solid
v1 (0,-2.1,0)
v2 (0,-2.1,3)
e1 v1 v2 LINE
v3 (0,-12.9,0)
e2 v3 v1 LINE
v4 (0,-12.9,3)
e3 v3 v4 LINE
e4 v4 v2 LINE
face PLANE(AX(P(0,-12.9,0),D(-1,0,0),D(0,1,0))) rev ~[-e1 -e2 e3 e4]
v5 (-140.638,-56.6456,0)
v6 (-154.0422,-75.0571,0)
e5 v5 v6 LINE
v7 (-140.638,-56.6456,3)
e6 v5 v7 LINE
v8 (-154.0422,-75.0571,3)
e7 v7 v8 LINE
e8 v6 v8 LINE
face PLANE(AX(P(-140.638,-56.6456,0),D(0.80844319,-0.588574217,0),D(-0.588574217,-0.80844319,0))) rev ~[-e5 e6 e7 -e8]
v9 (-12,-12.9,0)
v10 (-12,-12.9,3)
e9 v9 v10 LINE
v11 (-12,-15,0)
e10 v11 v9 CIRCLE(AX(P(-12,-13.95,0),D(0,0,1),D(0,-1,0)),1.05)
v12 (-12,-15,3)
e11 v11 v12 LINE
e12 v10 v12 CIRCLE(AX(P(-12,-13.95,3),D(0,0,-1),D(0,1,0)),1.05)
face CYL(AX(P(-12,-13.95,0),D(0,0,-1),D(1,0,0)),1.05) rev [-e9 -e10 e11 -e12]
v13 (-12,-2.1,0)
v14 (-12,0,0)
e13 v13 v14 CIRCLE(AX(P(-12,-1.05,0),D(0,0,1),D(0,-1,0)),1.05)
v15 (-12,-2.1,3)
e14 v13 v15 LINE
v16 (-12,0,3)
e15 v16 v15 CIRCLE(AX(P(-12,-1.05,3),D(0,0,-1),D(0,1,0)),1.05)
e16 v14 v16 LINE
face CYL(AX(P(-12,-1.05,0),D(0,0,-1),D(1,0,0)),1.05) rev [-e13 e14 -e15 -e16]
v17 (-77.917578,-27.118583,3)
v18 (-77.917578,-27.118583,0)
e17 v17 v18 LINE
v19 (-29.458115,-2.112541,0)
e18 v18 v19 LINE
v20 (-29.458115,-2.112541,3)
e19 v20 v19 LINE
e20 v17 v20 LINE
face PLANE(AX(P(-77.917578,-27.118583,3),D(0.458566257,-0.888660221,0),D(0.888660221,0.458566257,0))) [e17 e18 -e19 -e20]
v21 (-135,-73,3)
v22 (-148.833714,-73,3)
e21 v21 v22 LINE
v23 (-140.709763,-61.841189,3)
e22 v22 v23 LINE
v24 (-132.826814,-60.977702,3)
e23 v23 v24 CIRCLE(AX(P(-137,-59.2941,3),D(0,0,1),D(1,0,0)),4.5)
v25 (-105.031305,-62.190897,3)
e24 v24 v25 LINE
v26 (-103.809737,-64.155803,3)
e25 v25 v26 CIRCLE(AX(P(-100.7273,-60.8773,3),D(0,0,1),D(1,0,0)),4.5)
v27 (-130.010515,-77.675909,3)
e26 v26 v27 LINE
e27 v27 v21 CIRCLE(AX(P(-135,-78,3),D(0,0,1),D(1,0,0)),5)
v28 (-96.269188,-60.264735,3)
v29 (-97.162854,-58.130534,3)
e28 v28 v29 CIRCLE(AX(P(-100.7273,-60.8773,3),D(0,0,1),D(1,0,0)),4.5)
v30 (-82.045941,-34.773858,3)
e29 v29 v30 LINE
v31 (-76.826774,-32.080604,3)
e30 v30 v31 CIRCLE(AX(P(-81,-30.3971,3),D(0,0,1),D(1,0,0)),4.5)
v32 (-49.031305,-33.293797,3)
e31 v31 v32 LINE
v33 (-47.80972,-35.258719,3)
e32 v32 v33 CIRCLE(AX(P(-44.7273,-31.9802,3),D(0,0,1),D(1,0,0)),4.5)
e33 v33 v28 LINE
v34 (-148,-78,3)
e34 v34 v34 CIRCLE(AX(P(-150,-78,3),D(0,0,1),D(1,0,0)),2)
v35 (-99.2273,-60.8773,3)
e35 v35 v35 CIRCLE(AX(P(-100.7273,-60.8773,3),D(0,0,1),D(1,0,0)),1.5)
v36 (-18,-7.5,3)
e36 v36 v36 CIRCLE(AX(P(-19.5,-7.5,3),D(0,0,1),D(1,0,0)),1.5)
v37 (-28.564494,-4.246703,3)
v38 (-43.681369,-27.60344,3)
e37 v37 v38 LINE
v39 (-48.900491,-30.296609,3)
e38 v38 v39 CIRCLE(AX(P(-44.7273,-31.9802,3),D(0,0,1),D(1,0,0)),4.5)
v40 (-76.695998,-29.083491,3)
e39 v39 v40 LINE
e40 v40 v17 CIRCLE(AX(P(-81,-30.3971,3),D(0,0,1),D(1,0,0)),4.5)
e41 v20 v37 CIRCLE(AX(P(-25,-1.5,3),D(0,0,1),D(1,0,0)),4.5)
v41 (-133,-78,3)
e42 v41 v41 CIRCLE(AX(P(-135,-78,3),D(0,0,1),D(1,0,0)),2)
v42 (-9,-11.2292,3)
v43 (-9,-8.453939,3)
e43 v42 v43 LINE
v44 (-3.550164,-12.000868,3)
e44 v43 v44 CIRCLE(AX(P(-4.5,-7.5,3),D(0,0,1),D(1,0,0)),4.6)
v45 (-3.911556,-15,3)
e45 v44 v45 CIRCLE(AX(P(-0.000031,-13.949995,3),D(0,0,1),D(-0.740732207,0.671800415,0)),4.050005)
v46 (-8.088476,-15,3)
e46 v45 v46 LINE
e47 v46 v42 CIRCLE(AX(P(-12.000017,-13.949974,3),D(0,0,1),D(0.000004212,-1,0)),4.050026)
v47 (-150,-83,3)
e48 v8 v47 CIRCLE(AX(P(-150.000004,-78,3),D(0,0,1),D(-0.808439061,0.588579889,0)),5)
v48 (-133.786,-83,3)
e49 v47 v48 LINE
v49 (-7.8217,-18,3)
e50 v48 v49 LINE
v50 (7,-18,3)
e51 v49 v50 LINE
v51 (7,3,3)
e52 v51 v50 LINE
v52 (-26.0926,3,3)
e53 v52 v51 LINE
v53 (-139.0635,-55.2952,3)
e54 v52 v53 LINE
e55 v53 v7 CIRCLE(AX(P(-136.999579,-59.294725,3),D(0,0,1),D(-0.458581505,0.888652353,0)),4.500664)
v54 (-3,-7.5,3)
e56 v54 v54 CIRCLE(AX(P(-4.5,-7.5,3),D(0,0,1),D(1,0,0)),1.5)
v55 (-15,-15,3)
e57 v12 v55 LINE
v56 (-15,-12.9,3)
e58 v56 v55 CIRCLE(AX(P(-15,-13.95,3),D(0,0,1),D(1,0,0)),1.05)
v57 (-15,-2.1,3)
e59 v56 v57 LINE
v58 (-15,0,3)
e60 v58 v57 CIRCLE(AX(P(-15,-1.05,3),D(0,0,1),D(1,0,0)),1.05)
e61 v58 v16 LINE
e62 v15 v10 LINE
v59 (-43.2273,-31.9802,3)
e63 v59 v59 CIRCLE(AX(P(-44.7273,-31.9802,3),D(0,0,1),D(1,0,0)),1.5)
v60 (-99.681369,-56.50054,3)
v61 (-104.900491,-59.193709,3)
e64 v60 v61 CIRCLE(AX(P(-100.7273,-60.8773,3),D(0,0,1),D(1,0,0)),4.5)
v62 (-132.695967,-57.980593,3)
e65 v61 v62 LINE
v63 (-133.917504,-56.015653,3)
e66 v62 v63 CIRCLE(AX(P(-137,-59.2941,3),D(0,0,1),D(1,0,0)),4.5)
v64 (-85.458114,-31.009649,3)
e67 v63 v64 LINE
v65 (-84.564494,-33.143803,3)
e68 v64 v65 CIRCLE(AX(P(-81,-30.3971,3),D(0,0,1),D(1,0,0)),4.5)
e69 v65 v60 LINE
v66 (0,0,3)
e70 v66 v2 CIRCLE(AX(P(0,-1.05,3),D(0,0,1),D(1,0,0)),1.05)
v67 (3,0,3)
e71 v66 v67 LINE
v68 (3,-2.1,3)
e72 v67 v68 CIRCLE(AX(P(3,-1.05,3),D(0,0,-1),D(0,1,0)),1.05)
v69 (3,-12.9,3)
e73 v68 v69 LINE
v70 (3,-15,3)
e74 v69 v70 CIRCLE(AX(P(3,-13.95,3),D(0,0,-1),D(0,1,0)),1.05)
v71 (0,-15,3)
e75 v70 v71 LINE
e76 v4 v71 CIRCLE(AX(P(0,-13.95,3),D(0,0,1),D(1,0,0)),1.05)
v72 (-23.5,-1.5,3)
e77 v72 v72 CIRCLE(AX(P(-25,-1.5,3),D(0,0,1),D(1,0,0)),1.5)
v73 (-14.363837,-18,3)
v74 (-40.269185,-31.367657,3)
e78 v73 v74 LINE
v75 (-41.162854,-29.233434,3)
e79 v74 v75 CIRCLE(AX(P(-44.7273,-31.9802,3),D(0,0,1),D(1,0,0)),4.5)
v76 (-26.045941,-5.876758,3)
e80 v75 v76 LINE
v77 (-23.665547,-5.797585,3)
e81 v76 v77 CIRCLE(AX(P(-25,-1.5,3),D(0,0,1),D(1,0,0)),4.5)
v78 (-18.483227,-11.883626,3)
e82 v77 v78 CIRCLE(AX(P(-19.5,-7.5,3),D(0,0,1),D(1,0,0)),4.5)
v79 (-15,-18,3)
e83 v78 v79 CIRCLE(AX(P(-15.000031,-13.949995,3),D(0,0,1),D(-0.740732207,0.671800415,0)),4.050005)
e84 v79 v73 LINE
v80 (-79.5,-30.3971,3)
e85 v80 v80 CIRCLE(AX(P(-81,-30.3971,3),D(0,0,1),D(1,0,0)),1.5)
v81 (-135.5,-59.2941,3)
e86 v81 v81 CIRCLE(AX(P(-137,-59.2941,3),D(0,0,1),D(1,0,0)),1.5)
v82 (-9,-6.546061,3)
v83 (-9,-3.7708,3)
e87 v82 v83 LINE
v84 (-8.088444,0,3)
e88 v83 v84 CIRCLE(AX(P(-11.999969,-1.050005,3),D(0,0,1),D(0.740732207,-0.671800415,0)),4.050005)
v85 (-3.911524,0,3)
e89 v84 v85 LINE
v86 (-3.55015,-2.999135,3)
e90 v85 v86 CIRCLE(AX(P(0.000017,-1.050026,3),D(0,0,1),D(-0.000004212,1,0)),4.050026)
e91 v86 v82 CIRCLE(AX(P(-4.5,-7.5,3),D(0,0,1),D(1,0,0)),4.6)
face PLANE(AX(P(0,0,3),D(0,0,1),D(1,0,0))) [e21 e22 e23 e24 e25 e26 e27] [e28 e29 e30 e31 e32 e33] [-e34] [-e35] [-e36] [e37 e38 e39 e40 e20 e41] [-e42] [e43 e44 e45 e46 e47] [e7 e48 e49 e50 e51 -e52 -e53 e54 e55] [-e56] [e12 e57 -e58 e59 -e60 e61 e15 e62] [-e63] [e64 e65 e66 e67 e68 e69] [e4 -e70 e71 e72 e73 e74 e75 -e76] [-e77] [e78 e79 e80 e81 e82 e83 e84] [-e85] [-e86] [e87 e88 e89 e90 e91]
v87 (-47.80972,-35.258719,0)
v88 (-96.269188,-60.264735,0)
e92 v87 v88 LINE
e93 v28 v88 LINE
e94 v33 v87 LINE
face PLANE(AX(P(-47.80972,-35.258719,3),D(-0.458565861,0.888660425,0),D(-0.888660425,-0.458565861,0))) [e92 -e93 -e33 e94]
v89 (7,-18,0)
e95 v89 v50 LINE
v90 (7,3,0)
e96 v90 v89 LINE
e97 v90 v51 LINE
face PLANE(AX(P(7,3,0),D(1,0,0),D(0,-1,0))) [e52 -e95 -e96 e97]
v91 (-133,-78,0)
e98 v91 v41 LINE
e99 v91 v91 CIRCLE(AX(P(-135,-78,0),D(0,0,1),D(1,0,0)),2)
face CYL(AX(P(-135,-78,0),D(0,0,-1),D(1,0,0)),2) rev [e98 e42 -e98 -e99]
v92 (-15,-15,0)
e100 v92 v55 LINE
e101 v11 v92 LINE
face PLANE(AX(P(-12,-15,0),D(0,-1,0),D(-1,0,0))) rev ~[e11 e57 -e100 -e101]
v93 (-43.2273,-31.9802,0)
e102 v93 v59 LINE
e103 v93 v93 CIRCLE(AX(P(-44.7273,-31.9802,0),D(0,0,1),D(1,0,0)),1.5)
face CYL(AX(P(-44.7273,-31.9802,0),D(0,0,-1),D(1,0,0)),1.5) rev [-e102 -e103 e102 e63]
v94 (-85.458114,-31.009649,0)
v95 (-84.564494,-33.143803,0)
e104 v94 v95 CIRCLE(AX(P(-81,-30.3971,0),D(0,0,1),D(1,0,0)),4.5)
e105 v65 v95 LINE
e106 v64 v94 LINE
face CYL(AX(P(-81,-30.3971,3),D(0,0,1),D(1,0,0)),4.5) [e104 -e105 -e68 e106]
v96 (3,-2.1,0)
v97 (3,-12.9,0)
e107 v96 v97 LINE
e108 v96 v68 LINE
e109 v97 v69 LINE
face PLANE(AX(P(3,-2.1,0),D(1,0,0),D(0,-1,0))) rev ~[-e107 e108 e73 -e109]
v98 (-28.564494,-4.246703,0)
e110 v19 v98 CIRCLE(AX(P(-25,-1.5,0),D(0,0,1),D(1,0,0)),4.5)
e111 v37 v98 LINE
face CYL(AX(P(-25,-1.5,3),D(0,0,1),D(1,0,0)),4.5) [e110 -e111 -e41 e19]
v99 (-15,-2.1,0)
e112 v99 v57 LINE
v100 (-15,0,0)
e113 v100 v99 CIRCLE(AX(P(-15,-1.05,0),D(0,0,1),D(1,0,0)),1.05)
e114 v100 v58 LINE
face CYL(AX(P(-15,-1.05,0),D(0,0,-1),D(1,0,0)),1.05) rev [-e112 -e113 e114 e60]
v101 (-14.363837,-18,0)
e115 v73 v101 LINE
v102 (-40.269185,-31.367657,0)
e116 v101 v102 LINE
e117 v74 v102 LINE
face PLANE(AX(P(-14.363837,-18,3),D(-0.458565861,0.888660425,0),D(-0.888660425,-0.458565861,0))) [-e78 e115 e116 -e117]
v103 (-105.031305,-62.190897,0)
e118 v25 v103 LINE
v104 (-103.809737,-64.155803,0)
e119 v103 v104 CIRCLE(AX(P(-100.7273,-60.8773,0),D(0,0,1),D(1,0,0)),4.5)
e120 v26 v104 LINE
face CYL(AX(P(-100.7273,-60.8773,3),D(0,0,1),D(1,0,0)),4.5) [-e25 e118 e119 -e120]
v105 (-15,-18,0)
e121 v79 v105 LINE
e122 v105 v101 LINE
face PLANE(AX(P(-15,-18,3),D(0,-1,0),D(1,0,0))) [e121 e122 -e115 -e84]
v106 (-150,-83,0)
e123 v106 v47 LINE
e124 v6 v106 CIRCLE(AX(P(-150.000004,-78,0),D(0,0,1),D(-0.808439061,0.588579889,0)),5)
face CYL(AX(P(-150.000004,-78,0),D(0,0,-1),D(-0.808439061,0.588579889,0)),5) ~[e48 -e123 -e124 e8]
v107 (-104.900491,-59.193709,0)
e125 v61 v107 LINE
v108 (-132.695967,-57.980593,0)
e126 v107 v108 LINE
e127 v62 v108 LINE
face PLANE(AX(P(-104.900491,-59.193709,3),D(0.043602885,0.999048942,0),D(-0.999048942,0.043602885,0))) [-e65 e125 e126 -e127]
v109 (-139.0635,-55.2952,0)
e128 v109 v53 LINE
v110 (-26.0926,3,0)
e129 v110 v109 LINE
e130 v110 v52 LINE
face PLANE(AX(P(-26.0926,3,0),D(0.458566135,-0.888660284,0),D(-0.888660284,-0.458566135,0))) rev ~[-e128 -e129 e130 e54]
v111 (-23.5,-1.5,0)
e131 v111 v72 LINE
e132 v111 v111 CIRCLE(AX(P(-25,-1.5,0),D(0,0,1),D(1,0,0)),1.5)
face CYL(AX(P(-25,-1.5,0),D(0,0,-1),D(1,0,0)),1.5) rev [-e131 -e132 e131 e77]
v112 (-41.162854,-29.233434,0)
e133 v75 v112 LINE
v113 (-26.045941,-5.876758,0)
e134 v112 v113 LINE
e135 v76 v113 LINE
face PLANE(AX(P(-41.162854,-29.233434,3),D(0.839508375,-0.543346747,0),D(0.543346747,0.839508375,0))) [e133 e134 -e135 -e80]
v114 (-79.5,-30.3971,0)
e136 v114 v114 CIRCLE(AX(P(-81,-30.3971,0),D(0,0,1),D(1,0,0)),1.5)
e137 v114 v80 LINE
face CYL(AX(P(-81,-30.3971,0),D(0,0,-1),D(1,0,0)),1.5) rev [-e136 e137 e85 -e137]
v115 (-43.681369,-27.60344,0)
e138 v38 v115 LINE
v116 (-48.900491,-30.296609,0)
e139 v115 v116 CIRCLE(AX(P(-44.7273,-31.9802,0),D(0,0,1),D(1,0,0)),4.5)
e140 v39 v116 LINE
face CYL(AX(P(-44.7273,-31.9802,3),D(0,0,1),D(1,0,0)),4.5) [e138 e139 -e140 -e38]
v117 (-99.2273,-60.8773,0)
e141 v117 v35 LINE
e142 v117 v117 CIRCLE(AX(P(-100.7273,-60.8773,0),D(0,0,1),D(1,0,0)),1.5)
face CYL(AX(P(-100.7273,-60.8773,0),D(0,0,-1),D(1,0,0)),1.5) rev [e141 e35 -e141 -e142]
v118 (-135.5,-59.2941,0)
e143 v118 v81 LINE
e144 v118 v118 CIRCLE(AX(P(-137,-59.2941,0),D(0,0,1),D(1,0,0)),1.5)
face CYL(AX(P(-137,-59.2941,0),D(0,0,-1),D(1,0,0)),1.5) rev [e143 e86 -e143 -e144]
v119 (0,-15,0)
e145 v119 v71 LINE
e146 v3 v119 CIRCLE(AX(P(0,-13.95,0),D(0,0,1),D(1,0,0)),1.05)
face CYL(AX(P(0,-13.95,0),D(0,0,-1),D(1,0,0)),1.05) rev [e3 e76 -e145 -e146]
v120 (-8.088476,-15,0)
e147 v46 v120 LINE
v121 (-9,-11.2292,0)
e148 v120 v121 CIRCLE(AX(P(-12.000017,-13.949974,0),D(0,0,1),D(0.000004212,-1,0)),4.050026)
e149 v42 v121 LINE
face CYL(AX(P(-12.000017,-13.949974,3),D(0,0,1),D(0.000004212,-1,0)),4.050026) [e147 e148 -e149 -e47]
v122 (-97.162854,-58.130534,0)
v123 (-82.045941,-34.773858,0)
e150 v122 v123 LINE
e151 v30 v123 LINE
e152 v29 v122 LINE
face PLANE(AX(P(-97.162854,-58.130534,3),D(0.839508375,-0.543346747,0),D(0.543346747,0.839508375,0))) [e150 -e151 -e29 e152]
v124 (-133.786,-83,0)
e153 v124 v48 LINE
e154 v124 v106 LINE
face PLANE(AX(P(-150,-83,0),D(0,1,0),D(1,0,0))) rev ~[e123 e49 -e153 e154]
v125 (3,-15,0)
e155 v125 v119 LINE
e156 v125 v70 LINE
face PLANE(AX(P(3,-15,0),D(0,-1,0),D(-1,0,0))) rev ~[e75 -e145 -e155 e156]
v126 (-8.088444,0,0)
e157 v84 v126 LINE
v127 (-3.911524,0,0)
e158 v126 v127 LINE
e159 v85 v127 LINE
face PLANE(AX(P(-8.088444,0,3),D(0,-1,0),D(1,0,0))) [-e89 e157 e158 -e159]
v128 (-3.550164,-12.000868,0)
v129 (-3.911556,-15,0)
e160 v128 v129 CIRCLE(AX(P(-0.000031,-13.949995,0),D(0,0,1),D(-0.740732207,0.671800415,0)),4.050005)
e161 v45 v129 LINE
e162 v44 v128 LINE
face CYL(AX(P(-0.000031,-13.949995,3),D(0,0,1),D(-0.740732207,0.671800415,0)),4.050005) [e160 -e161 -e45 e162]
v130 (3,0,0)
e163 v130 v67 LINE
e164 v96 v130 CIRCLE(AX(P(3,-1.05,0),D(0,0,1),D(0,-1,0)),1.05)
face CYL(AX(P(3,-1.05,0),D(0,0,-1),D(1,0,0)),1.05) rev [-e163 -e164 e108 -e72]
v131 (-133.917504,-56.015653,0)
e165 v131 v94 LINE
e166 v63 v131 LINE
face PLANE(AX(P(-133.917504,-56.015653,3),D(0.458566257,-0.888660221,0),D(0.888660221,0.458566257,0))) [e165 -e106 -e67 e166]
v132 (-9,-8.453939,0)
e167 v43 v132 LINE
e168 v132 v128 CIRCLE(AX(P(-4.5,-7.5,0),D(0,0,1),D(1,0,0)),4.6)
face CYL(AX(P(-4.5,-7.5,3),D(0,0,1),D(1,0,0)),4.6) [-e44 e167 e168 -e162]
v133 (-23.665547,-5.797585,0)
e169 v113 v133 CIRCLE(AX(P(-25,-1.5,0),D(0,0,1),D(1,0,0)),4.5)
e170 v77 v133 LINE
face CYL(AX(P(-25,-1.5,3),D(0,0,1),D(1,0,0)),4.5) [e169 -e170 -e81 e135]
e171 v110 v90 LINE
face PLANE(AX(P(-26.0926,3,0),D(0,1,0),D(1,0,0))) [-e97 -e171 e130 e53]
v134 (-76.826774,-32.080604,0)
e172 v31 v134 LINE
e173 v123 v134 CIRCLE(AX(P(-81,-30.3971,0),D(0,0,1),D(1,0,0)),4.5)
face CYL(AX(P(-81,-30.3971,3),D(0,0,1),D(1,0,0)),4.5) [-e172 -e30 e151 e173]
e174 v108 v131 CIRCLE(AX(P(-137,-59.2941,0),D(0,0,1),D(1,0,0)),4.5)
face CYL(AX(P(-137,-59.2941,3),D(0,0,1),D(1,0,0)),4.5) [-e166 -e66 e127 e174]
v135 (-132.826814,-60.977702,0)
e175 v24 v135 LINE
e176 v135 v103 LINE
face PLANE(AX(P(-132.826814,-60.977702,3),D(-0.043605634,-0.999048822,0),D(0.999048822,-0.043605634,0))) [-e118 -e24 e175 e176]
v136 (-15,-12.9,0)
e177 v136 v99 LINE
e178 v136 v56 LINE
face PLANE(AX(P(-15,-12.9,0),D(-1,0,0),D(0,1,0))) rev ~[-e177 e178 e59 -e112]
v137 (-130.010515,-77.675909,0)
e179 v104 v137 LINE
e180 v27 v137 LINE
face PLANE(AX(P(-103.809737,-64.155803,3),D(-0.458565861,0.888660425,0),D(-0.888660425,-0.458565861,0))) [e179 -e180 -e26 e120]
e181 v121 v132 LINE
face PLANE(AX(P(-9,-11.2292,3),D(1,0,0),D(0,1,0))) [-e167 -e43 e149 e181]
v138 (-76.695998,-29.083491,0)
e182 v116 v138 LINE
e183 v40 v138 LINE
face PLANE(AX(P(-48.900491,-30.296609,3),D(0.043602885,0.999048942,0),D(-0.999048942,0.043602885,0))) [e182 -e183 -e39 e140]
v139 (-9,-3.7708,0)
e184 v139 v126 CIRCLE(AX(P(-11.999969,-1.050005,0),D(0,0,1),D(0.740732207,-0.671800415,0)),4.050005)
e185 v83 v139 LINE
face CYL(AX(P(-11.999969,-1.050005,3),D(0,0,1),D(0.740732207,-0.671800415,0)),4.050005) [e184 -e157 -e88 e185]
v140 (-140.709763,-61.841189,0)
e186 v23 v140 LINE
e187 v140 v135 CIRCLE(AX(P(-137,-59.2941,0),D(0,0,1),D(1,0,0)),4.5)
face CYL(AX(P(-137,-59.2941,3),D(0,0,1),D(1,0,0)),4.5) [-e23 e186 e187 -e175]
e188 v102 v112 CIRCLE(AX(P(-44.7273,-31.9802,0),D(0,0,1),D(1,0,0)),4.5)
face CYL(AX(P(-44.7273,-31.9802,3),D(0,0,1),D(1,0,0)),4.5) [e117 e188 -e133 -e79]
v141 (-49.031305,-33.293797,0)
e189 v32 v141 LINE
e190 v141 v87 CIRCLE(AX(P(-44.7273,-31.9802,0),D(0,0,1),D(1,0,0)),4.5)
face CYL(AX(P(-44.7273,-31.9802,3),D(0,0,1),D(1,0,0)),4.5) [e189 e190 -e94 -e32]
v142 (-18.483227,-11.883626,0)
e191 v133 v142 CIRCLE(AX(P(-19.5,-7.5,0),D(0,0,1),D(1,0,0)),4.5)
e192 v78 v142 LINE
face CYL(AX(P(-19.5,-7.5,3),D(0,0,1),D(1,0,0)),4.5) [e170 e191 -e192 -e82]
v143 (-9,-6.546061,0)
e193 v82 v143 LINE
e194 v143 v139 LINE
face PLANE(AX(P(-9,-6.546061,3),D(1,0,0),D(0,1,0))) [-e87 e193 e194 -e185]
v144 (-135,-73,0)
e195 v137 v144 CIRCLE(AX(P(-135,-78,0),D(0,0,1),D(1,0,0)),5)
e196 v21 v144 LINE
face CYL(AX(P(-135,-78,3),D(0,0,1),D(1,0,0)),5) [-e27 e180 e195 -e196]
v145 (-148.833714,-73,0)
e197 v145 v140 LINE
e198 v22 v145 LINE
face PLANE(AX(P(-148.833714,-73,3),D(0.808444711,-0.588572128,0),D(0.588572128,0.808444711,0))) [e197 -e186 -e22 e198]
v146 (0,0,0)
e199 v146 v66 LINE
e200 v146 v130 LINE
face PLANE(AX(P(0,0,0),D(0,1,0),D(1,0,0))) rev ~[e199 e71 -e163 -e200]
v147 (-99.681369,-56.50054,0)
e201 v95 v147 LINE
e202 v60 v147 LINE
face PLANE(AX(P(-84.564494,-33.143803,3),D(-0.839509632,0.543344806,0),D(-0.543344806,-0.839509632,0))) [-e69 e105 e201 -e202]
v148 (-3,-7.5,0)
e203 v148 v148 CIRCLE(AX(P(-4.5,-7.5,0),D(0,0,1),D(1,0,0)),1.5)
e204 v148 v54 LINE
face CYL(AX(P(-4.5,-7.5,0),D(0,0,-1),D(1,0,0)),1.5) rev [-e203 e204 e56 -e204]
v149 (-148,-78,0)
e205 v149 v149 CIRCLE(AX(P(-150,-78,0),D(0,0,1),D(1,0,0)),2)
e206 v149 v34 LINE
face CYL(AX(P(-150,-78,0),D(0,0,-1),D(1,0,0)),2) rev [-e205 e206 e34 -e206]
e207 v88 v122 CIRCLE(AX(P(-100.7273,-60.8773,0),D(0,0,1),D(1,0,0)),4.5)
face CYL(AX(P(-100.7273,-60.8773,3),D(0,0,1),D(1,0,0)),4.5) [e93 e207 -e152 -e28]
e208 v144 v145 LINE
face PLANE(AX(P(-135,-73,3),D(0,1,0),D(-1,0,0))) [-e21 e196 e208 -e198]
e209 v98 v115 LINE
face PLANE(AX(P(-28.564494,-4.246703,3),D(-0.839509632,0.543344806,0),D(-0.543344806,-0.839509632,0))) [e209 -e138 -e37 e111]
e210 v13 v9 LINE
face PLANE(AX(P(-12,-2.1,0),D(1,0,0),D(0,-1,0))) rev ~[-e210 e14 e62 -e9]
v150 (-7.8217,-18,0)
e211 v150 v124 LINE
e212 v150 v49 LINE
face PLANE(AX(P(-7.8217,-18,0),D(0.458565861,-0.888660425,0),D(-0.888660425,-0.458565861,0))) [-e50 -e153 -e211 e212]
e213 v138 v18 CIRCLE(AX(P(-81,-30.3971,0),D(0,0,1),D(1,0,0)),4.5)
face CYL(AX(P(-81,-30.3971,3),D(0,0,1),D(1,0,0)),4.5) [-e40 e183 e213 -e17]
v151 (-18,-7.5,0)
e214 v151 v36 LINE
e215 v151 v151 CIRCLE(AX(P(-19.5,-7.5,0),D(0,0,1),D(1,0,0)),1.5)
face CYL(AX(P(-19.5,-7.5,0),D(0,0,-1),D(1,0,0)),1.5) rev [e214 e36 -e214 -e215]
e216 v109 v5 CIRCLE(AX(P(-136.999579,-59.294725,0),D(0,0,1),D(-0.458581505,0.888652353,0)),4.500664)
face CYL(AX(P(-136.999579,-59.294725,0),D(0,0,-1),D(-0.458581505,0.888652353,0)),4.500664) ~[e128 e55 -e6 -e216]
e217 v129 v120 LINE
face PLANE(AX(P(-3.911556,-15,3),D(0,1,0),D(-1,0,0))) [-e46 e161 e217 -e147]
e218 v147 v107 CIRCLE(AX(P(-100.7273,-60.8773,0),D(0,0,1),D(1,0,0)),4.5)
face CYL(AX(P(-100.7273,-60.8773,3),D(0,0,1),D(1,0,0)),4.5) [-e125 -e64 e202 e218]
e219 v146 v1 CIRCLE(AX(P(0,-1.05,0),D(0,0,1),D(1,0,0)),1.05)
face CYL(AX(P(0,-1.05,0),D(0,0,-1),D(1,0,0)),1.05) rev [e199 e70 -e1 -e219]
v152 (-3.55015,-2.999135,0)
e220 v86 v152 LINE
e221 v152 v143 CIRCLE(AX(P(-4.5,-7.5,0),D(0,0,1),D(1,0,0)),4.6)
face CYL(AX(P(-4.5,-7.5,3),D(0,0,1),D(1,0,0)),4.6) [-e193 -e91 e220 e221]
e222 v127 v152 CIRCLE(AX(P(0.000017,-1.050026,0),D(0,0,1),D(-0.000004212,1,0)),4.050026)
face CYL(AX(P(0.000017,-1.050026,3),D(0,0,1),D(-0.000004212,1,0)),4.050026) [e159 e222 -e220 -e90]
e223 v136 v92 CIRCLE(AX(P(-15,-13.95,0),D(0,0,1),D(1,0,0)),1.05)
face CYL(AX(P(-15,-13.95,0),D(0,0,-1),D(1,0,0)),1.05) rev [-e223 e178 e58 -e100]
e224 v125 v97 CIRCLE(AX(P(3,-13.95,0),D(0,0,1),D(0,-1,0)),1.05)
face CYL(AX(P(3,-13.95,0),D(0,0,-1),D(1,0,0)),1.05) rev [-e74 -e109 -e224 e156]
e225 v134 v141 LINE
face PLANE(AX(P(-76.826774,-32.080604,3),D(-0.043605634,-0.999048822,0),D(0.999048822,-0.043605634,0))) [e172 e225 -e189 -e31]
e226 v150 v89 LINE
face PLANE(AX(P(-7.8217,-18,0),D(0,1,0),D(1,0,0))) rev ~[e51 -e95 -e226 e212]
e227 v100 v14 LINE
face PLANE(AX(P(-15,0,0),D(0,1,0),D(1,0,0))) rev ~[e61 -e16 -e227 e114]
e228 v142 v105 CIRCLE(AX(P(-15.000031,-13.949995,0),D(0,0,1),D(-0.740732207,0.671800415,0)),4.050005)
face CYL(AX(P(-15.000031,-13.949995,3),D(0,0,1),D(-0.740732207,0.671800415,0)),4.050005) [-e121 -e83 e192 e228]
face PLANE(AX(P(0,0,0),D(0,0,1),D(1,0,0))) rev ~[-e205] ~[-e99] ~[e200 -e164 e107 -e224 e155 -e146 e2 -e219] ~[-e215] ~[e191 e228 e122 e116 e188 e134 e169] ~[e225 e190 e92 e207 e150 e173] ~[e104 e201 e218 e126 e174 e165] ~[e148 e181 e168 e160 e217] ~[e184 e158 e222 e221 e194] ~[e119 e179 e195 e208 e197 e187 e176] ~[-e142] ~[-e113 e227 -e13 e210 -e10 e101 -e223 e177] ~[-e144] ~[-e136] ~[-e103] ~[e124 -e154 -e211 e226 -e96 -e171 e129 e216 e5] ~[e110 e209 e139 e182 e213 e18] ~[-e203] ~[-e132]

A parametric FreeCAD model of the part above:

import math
import FreeCAD as App
import Part
import Sketcher
Q = App.Units.Quantity

doc = App.newDocument("Part")
body = doc.addObject("PartDesign::Body", "Body")

sketch1 = body.newObject("Sketcher::SketchObject", "Sketch")
sketch1.AttachmentSupport = (doc.getObject("XY_Plane"), [""])
sketch1.MapMode = "FlatFace"
sketch1.addGeometry([
    Part.LineSegment(App.Vector(7, 3, 0), App.Vector(-26.1, 3, 0)),
    Part.LineSegment(App.Vector(-26.1, 3, 0), App.Vector(-139.1, -55.3, 0)),
    Part.ArcOfCircle(Part.Circle(App.Vector(-137, -59.3, 0), App.Vector(0, 0, 1), 4.5), math.radians(117), math.radians(144)),
    Part.LineSegment(App.Vector(-140.6, -56.6, 0), App.Vector(-154, -75.1, 0)),
    Part.ArcOfCircle(Part.Circle(App.Vector(-150, -78, 0), App.Vector(0, 0, 1), 5), math.radians(144), math.radians(270)),
    Part.LineSegment(App.Vector(-150, -83, 0), App.Vector(-133.8, -83, 0)),
    Part.LineSegment(App.Vector(-133.8, -83, 0), App.Vector(-7.8, -18, 0)),
    Part.LineSegment(App.Vector(-7.8, -18, 0), App.Vector(7, -18, 0)),
    Part.LineSegment(App.Vector(7, -18, 0), App.Vector(7, 3, 0)),
    Part.Circle(App.Vector(-150, -78, 0), App.Vector(0, 0, 1), 2),
    Part.Circle(App.Vector(-137, -59.3, 0), App.Vector(0, 0, 1), 1.5),
    Part.Circle(App.Vector(-100.7, -60.9, 0), App.Vector(0, 0, 1), 1.5),
    Part.Circle(App.Vector(-81, -30.4, 0), App.Vector(0, 0, 1), 1.5),
    Part.Circle(App.Vector(-44.7, -32, 0), App.Vector(0, 0, 1), 1.5),
    Part.Circle(App.Vector(-19.5, -7.5, 0), App.Vector(0, 0, 1), 1.5),
    Part.ArcOfCircle(Part.Circle(App.Vector(-15, -1.1, 0), App.Vector(0, 0, 1), 1.1), math.radians(90), math.radians(270)),
    Part.LineSegment(App.Vector(-15, 0, 0), App.Vector(-12, 0, 0)),
    Part.ArcOfCircle(Part.Circle(App.Vector(-12, -1.1, 0), App.Vector(0, 0, 1), 1.1), math.radians(-90), math.radians(90)),
    Part.LineSegment(App.Vector(-12, -2.1, 0), App.Vector(-12, -12.9, 0)),
    Part.ArcOfCircle(Part.Circle(App.Vector(-12, -13.9, 0), App.Vector(0, 0, 1), 1.1), math.radians(-90), math.radians(90)),
    Part.LineSegment(App.Vector(-12, -15, 0), App.Vector(-15, -15, 0)),
    Part.ArcOfCircle(Part.Circle(App.Vector(-15, -13.9, 0), App.Vector(0, 0, 1), 1.1), math.radians(90), math.radians(270)),
    Part.LineSegment(App.Vector(-15, -12.9, 0), App.Vector(-15, -2.1, 0)),
    Part.Circle(App.Vector(-25, -1.5, 0), App.Vector(0, 0, 1), 1.5),
    Part.Circle(App.Vector(-4.5, -7.5, 0), App.Vector(0, 0, 1), 1.5),
    Part.ArcOfCircle(Part.Circle(App.Vector(0, -1.1, 0), App.Vector(0, 0, 1), 1.1), math.radians(90), math.radians(270)),
    Part.LineSegment(App.Vector(0, 0, 0), App.Vector(3, 0, 0)),
    Part.ArcOfCircle(Part.Circle(App.Vector(3, -1.1, 0), App.Vector(0, 0, 1), 1.1), math.radians(-90), math.radians(90)),
    Part.LineSegment(App.Vector(3, -2.1, 0), App.Vector(3, -12.9, 0)),
    Part.ArcOfCircle(Part.Circle(App.Vector(3, -13.9, 0), App.Vector(0, 0, 1), 1.1), math.radians(-90), math.radians(90)),
    Part.LineSegment(App.Vector(3, -15, 0), App.Vector(0, -15, 0)),
    Part.ArcOfCircle(Part.Circle(App.Vector(0, -13.9, 0), App.Vector(0, 0, 1), 1.1), math.radians(90), math.radians(270)),
    Part.LineSegment(App.Vector(0, -12.9, 0), App.Vector(0, -2.1, 0)),
    Part.Circle(App.Vector(-135, -78, 0), App.Vector(0, 0, 1), 2),
], False)
sketch1.addConstraint([
    Sketcher.Constraint("Coincident", 0, 2, 1, 1),
    Sketcher.Constraint("Tangent", 1, 2, 2, 1),
    Sketcher.Constraint("Tangent", 2, 2, 3, 1),
    Sketcher.Constraint("Tangent", 3, 2, 4, 1),
    Sketcher.Constraint("Tangent", 4, 2, 5, 1),
    Sketcher.Constraint("Coincident", 5, 2, 6, 1),
    Sketcher.Constraint("Coincident", 6, 2, 7, 1),
    Sketcher.Constraint("Coincident", 7, 2, 8, 1),
    Sketcher.Constraint("Coincident", 8, 2, 0, 1),
    Sketcher.Constraint("Tangent", 15, 1, 16, 1),
    Sketcher.Constraint("Tangent", 16, 2, 17, 2),
    Sketcher.Constraint("Coincident", 17, 1, 18, 1),
    Sketcher.Constraint("Coincident", 18, 2, 19, 2),
    Sketcher.Constraint("Tangent", 19, 1, 20, 1),
    Sketcher.Constraint("Tangent", 20, 2, 21, 2),
    Sketcher.Constraint("Coincident", 21, 1, 22, 1),
    Sketcher.Constraint("Coincident", 22, 2, 15, 2),
    Sketcher.Constraint("Tangent", 25, 1, 26, 1),
    Sketcher.Constraint("Tangent", 26, 2, 27, 2),
    Sketcher.Constraint("Coincident", 27, 1, 28, 1),
    Sketcher.Constraint("Coincident", 28, 2, 29, 2),
    Sketcher.Constraint("Tangent", 29, 1, 30, 1),
    Sketcher.Constraint("Tangent", 30, 2, 31, 2),
    Sketcher.Constraint("Coincident", 31, 1, 32, 1),
    Sketcher.Constraint("Coincident", 32, 2, 25, 2),
    Sketcher.Constraint("Horizontal", 0),
    Sketcher.Constraint("Horizontal", 5),
    Sketcher.Constraint("Horizontal", 7),
    Sketcher.Constraint("Vertical", 8),
    Sketcher.Constraint("Horizontal", 16),
    Sketcher.Constraint("Vertical", 18),
    Sketcher.Constraint("Horizontal", 20),
    Sketcher.Constraint("Vertical", 22),
    Sketcher.Constraint("Horizontal", 26),
    Sketcher.Constraint("Vertical", 28),
    Sketcher.Constraint("Horizontal", 30),
    Sketcher.Constraint("Vertical", 32),
    Sketcher.Constraint("Coincident", 25, 1, -1, 1),
    Sketcher.Constraint("Coincident", 9, 3, 4, 3),
    Sketcher.Constraint("Coincident", 10, 3, 2, 3),
    Sketcher.Constraint("Equal", 10, 11),
    Sketcher.Constraint("Equal", 11, 12),
    Sketcher.Constraint("Equal", 12, 13),
    Sketcher.Constraint("Equal", 13, 14),
    Sketcher.Constraint("Equal", 15, 17),
    Sketcher.Constraint("Equal", 17, 19),
    Sketcher.Constraint("Equal", 19, 21),
    Sketcher.Constraint("Equal", 14, 23),
    Sketcher.Constraint("Equal", 23, 24),
    Sketcher.Constraint("Equal", 21, 25),
    Sketcher.Constraint("Equal", 25, 27),
    Sketcher.Constraint("Equal", 27, 29),
    Sketcher.Constraint("Equal", 29, 31),
    Sketcher.Constraint("Equal", 9, 33),
    Sketcher.Constraint("PointOnObject", 31, 3, -2),
    Sketcher.Constraint("PointOnObject", 15, 1, -1),
    Sketcher.Constraint("PointOnObject", 31, 1, -2),
    Sketcher.Constraint("Parallel", 1, 6),
    Sketcher.Constraint("Horizontal", 14, 3, 24, 3),
    Sketcher.Constraint("Horizontal", 21, 3, 29, 3),
    Sketcher.Constraint("Horizontal", 9, 3, 33, 3),
    Sketcher.Constraint("Vertical", 17, 3, 19, 3),
    Sketcher.Constraint("Vertical", 15, 3, 21, 3),
    Sketcher.Constraint("Vertical", 27, 3, 29, 3),
    Sketcher.Constraint("Vertical", 16, 2, 17, 1),
    Sketcher.Constraint("Vertical", 20, 2, 21, 1),
    Sketcher.Constraint("Vertical", 26, 2, 27, 1),
    Sketcher.Constraint("Equal", 20, 26),
    Sketcher.Constraint("Diameter", 9, 4.0),
    Sketcher.Constraint("Diameter", 10, 3.0),
    Sketcher.Constraint("Radius", 4, 5.0),
    Sketcher.Constraint("Radius", 2, 4.5),
    Sketcher.Constraint("DistanceX", 16, 1, 16, 2, 3.0),
    Sketcher.Constraint("Radius", 15, 1.05),
    Sketcher.Constraint("DistanceX", 15, 3, -1, 1, 15.0),
    Sketcher.Constraint("DistanceY", -1, 1, 0, 2, 3.0),
    Sketcher.Constraint("DistanceY", 19, 1, -1, 1, 15.0),
    Sketcher.Constraint("DistanceX", 23, 3, 15, 3, 10.0),
    Sketcher.Constraint("DistanceX", 14, 3, 24, 3, 15.0),
    Sketcher.Constraint("DistanceX", 4, 3, 33, 3, 15.0),
    Sketcher.Constraint("DistanceX", 29, 3, 7, 2, 4.0),
    Sketcher.Constraint("DistanceY", 6, 2, 19, 1, 3.0),
    Sketcher.Constraint("DistanceY", 14, 3, -1, 1, 7.5),
    Sketcher.Constraint("DistanceX", 24, 3, -1, 1, 4.5),
    Sketcher.Constraint("DistanceY", 23, 3, 0, 2, 4.5),
    Sketcher.Constraint("DistanceX", 2, 3, -1, 1, 137.0),
    Sketcher.Constraint("DistanceX", 4, 3, -1, 1, 150.0),
    Sketcher.Constraint("DistanceY", 4, 3, -1, 1, 78.0),
    Sketcher.Constraint("DistanceX", 12, 3, -1, 1, 81.0),
    Sketcher.Constraint("DistanceX", 11, 3, 13, 3, 56.0),
    Sketcher.Constraint("DistanceX", 5, 1, 5, 2, 16.214),
    Sketcher.Constraint("Distance", 1, 127.125),
    Sketcher.Constraint("Distance", 3, 22.774),
    Sketcher.Constraint("DistanceY", 12, 3, -1, 1, 30.397),
    Sketcher.Constraint("DistanceY", 13, 3, 12, 3, 1.583),
    Sketcher.Constraint("DistanceY", 11, 3, 13, 3, 28.897),
    Sketcher.Constraint("DistanceX", 11, 3, -1, 1, 100.7273),
])
pad1 = body.newObject("PartDesign::Pad", "Pad")
pad1.Profile = sketch1
pad1.Length = 3

sketch2 = body.newObject("Sketcher::SketchObject", "Sketch001")
sketch2.AttachmentSupport = (doc.getObject("XY_Plane"), [""])
sketch2.MapMode = "FlatFace"
sketch2.AttachmentOffset = App.Placement(App.Vector(0, 0, 3), App.Rotation())
sketch2.addGeometry([
    Part.LineSegment(App.Vector(-148.8, -73, 0), App.Vector(-135, -73, 0)),
    Part.ArcOfCircle(Part.Circle(App.Vector(-135, -78, 0), App.Vector(0, 0, 1), 5), math.radians(4), math.radians(90)),
    Part.LineSegment(App.Vector(-130, -77.7, 0), App.Vector(-103.8, -64.2, 0)),
    Part.ArcOfCircle(Part.Circle(App.Vector(-100.7, -60.9, 0), App.Vector(0, 0, 1), 4.5), math.radians(-163), math.radians(-133)),
    Part.LineSegment(App.Vector(-105, -62.2, 0), App.Vector(-132.8, -61, 0)),
    Part.ArcOfCircle(Part.Circle(App.Vector(-137, -59.3, 0), App.Vector(0, 0, 1), 4.5), math.radians(-146), math.radians(-22)),
    Part.LineSegment(App.Vector(-140.7, -61.8, 0), App.Vector(-148.8, -73, 0)),
    Part.LineSegment(App.Vector(-85.5, -31, 0), App.Vector(-133.9, -56, 0)),
    Part.ArcOfCircle(Part.Circle(App.Vector(-137, -59.3, 0), App.Vector(0, 0, 1), 4.5), math.radians(17), math.radians(47)),
    Part.LineSegment(App.Vector(-132.7, -58, 0), App.Vector(-104.9, -59.2, 0)),
    Part.ArcOfCircle(Part.Circle(App.Vector(-100.7, -60.9, 0), App.Vector(0, 0, 1), 4.5), math.radians(77), math.radians(158)),
    Part.LineSegment(App.Vector(-99.7, -56.5, 0), App.Vector(-84.6, -33.1, 0)),
    Part.ArcOfCircle(Part.Circle(App.Vector(-81, -30.4, 0), App.Vector(0, 0, 1), 4.5), math.radians(-172), math.radians(-142)),
    Part.LineSegment(App.Vector(-96.3, -60.3, 0), App.Vector(-47.8, -35.3, 0)),
    Part.ArcOfCircle(Part.Circle(App.Vector(-44.7, -32, 0), App.Vector(0, 0, 1), 4.5), math.radians(-163), math.radians(-133)),
    Part.LineSegment(App.Vector(-49, -33.3, 0), App.Vector(-76.8, -32.1, 0)),
    Part.ArcOfCircle(Part.Circle(App.Vector(-81, -30.4, 0), App.Vector(0, 0, 1), 4.5), math.radians(-103), math.radians(-22)),
    Part.LineSegment(App.Vector(-82, -34.8, 0), App.Vector(-97.2, -58.1, 0)),
    Part.ArcOfCircle(Part.Circle(App.Vector(-100.7, -60.9, 0), App.Vector(0, 0, 1), 4.5), math.radians(8), math.radians(38)),
    Part.LineSegment(App.Vector(-29.5, -2.1, 0), App.Vector(-77.9, -27.1, 0)),
    Part.ArcOfCircle(Part.Circle(App.Vector(-81, -30.4, 0), App.Vector(0, 0, 1), 4.5), math.radians(17), math.radians(47)),
    Part.LineSegment(App.Vector(-76.7, -29.1, 0), App.Vector(-48.9, -30.3, 0)),
    Part.ArcOfCircle(Part.Circle(App.Vector(-44.7, -32, 0), App.Vector(0, 0, 1), 4.5), math.radians(77), math.radians(158)),
    Part.LineSegment(App.Vector(-43.7, -27.6, 0), App.Vector(-28.6, -4.2, 0)),
    Part.ArcOfCircle(Part.Circle(App.Vector(-25, -1.5, 0), App.Vector(0, 0, 1), 4.5), math.radians(-172), math.radians(-142)),
    Part.ArcOfCircle(Part.Circle(App.Vector(-44.7, -32, 0), App.Vector(0, 0, 1), 4.5), math.radians(8), math.radians(38)),
    Part.LineSegment(App.Vector(-40.3, -31.4, 0), App.Vector(-14.4, -18, 0)),
    Part.LineSegment(App.Vector(-14.4, -18, 0), App.Vector(-15, -18, 0)),
    Part.ArcOfCircle(Part.Circle(App.Vector(-15, -13.9, 0), App.Vector(0, 0, 1), 4.1), math.radians(149), math.radians(270)),
    Part.ArcOfCircle(Part.Circle(App.Vector(-19.5, -7.5, 0), App.Vector(0, 0, 1), 4.5), math.radians(158), math.radians(283)),
    Part.ArcOfCircle(Part.Circle(App.Vector(-25, -1.5, 0), App.Vector(0, 0, 1), 4.5), math.radians(-103), math.radians(-73)),
    Part.LineSegment(App.Vector(-26, -5.9, 0), App.Vector(-41.2, -29.2, 0)),
    Part.LineSegment(App.Vector(-8.1, -15, 0), App.Vector(-3.9, -15, 0)),
    Part.ArcOfCircle(Part.Circle(App.Vector(0, -13.9, 0), App.Vector(0, 0, 1), 4.1), math.radians(151), math.radians(195)),
    Part.ArcOfCircle(Part.Circle(App.Vector(-4.5, -7.5, 0), App.Vector(0, 0, 1), 4.6), math.radians(-168), math.radians(-78)),
    Part.LineSegment(App.Vector(-9, -8.5, 0), App.Vector(-9, -11.2, 0)),
    Part.ArcOfCircle(Part.Circle(App.Vector(-12, -13.9, 0), App.Vector(0, 0, 1), 4.1), math.radians(-15), math.radians(42)),
    Part.LineSegment(App.Vector(-3.9, 0, 0), App.Vector(-8.1, 0, 0)),
    Part.ArcOfCircle(Part.Circle(App.Vector(-12, -1.1, 0), App.Vector(0, 0, 1), 4.1), math.radians(-42), math.radians(15)),
    Part.LineSegment(App.Vector(-9, -3.8, 0), App.Vector(-9, -6.5, 0)),
    Part.ArcOfCircle(Part.Circle(App.Vector(-4.5, -7.5, 0), App.Vector(0, 0, 1), 4.6), math.radians(78), math.radians(168)),
    Part.ArcOfCircle(Part.Circle(App.Vector(0, -1.1, 0), App.Vector(0, 0, 1), 4), math.radians(165), math.radians(209)),
], False)
sketch2.addConstraint([
    Sketcher.Constraint("Tangent", 0, 2, 1, 2),
    Sketcher.Constraint("Coincident", 1, 1, 2, 1),
    Sketcher.Constraint("Coincident", 2, 2, 3, 2),
    Sketcher.Constraint("Coincident", 3, 1, 4, 1),
    Sketcher.Constraint("Coincident", 4, 2, 5, 2),
    Sketcher.Constraint("Coincident", 5, 1, 6, 1),
    Sketcher.Constraint("Coincident", 6, 2, 0, 1),
    Sketcher.Constraint("Coincident", 7, 2, 8, 2),
    Sketcher.Constraint("Coincident", 8, 1, 9, 1),
    Sketcher.Constraint("Coincident", 9, 2, 10, 2),
    Sketcher.Constraint("Coincident", 10, 1, 11, 1),
    Sketcher.Constraint("Coincident", 11, 2, 12, 2),
    Sketcher.Constraint("Coincident", 12, 1, 7, 1),
    Sketcher.Constraint("Coincident", 13, 2, 14, 2),
    Sketcher.Constraint("Coincident", 14, 1, 15, 1),
    Sketcher.Constraint("Coincident", 15, 2, 16, 2),
    Sketcher.Constraint("Coincident", 16, 1, 17, 1),
    Sketcher.Constraint("Coincident", 17, 2, 18, 2),
    Sketcher.Constraint("Coincident", 18, 1, 13, 1),
    Sketcher.Constraint("Coincident", 19, 2, 20, 2),
    Sketcher.Constraint("Coincident", 20, 1, 21, 1),
    Sketcher.Constraint("Coincident", 21, 2, 22, 2),
    Sketcher.Constraint("Coincident", 22, 1, 23, 1),
    Sketcher.Constraint("Coincident", 23, 2, 24, 2),
    Sketcher.Constraint("Coincident", 24, 1, 19, 1),
    Sketcher.Constraint("Coincident", 25, 1, 26, 1),
    Sketcher.Constraint("Coincident", 26, 2, 27, 1),
    Sketcher.Constraint("Tangent", 27, 2, 28, 2),
    Sketcher.Constraint("Coincident", 28, 1, 29, 2),
    Sketcher.Constraint("Coincident", 29, 1, 30, 2),
    Sketcher.Constraint("Coincident", 30, 1, 31, 1),
    Sketcher.Constraint("Coincident", 31, 2, 25, 2),
    Sketcher.Constraint("Coincident", 32, 2, 33, 2),
    Sketcher.Constraint("Coincident", 33, 1, 34, 2),
    Sketcher.Constraint("Coincident", 34, 1, 35, 1),
    Sketcher.Constraint("Coincident", 35, 2, 36, 2),
    Sketcher.Constraint("Coincident", 36, 1, 32, 1),
    Sketcher.Constraint("Coincident", 37, 2, 38, 2),
    Sketcher.Constraint("Coincident", 38, 1, 39, 1),
    Sketcher.Constraint("Coincident", 39, 2, 40, 2),
    Sketcher.Constraint("Coincident", 40, 1, 41, 2),
    Sketcher.Constraint("Coincident", 41, 1, 37, 1),
    Sketcher.Constraint("Horizontal", 0),
    Sketcher.Constraint("Horizontal", 27),
    Sketcher.Constraint("Horizontal", 32),
    Sketcher.Constraint("Vertical", 35),
    Sketcher.Constraint("Horizontal", 37),
    Sketcher.Constraint("Vertical", 39),
    Sketcher.Constraint("Coincident", 8, 3, 5, 3),
    Sketcher.Constraint("Coincident", 10, 3, 3, 3),
    Sketcher.Constraint("Coincident", 16, 3, 12, 3),
    Sketcher.Constraint("Coincident", 18, 3, 3, 3),
    Sketcher.Constraint("Coincident", 20, 3, 12, 3),
    Sketcher.Constraint("Coincident", 22, 3, 14, 3),
    Sketcher.Constraint("Coincident", 25, 3, 14, 3),
    Sketcher.Constraint("Coincident", 30, 3, 24, 3),
    Sketcher.Constraint("Coincident", 40, 3, 34, 3),
    Sketcher.Constraint("Equal", 3, 5),
    Sketcher.Constraint("Equal", 5, 8),
    Sketcher.Constraint("Equal", 8, 10),
    Sketcher.Constraint("Equal", 10, 12),
    Sketcher.Constraint("Equal", 12, 14),
    Sketcher.Constraint("Equal", 14, 16),
    Sketcher.Constraint("Equal", 16, 18),
    Sketcher.Constraint("Equal", 18, 20),
    Sketcher.Constraint("Equal", 20, 22),
    Sketcher.Constraint("Equal", 22, 24),
    Sketcher.Constraint("Equal", 24, 25),
    Sketcher.Constraint("Equal", 25, 29),
    Sketcher.Constraint("Equal", 29, 30),
    Sketcher.Constraint("Equal", 28, 33),
    Sketcher.Constraint("Equal", 33, 36),
    Sketcher.Constraint("Equal", 36, 38),
    Sketcher.Constraint("Equal", 34, 40),
    Sketcher.Constraint("Equal", 38, 41),
    Sketcher.Constraint("PointOnObject", 33, 3, -2),
    Sketcher.Constraint("PointOnObject", 41, 3, -2),
    Sketcher.Constraint("PointOnObject", 37, 2, -1),
    Sketcher.Constraint("Parallel", 2, 7),
    Sketcher.Constraint("Parallel", 4, 9),
    Sketcher.Constraint("Parallel", 7, 13),
    Sketcher.Constraint("Parallel", 9, 15),
    Sketcher.Constraint("Parallel", 11, 17),
    Sketcher.Constraint("Parallel", 13, 19),
    Sketcher.Constraint("Parallel", 15, 21),
    Sketcher.Constraint("Parallel", 17, 23),
    Sketcher.Constraint("Parallel", 19, 26),
    Sketcher.Constraint("Parallel", 23, 31),
    Sketcher.Constraint("Horizontal", 28, 3, 33, 3),
    Sketcher.Constraint("Horizontal", 29, 3, 34, 3),
    Sketcher.Constraint("Horizontal", 33, 3, 36, 3),
    Sketcher.Constraint("Horizontal", 38, 3, 41, 3),
    Sketcher.Constraint("Vertical", 36, 3, 38, 3),
    Sketcher.Constraint("Vertical", 36, 1, 37, 2),
    Sketcher.Constraint("Vertical", 35, 2, 38, 1),
    Sketcher.Constraint("Vertical", 33, 1, 40, 1),
    Sketcher.Constraint("Equal", 4, 9),
    Sketcher.Constraint("Equal", 9, 11),
    Sketcher.Constraint("Equal", 7, 13),
    Sketcher.Constraint("Equal", 11, 15),
    Sketcher.Constraint("Equal", 15, 17),
    Sketcher.Constraint("Equal", 13, 19),
    Sketcher.Constraint("Equal", 17, 21),
    Sketcher.Constraint("Equal", 21, 23),
    Sketcher.Constraint("Equal", 23, 31),
    Sketcher.Constraint("Radius", 1, 5.0),
    Sketcher.Constraint("Radius", 3, 4.5),
    Sketcher.Constraint("Radius", 34, 4.6),
    Sketcher.Constraint("Radius", 28, 4.05),
    Sketcher.Constraint("DistanceX", 1, 3, -1, 1, 135.0),
    Sketcher.Constraint("DistanceY", 1, 3, -1, 1, 78.0),
    Sketcher.Constraint("DistanceX", 5, 3, -1, 1, 137.0),
    Sketcher.Constraint("DistanceX", 12, 3, -1, 1, 81.0),
    Sketcher.Constraint("DistanceX", 24, 3, -1, 1, 25.0),
    Sketcher.Constraint("DistanceX", 28, 3, -1, 1, 15.0),
    Sketcher.Constraint("DistanceX", 36, 3, -1, 1, 12.0),
    Sketcher.Constraint("DistanceY", 26, 2, -1, 1, 18.0),
    Sketcher.Constraint("DistanceY", 32, 2, -1, 1, 15.0),
    Sketcher.Constraint("DistanceX", 34, 1, -1, 1, 9.0),
    Sketcher.Constraint("Angle", 4, Q("177.5008 deg")),
    Sketcher.Constraint("DistanceY", 24, 3, -1, 1, 1.5),
    Sketcher.Constraint("DistanceX", 29, 3, -1, 1, 19.5),
    Sketcher.Constraint("DistanceX", 34, 3, -1, 1, 4.5),
    Sketcher.Constraint("Distance", 4, 27.822),
    Sketcher.Constraint("Distance", 13, 54.531),
    Sketcher.Constraint("Distance", 26, 29.151),
    Sketcher.Constraint("DistanceX", 0, 1, 0, 2, 13.8337),
    Sketcher.Constraint("DistanceX", 27, 2, 27, 1, 0.6362),
    Sketcher.Constraint("DistanceY", 5, 3, -1, 1, 59.294),
    Sketcher.Constraint("DistanceY", 12, 3, -1, 1, 30.397),
    Sketcher.Constraint("DistanceY", 1, 1, -1, 1, 77.676),
    Sketcher.Constraint("DistanceY", 3, 1, -1, 1, 62.191),
    Sketcher.Constraint("DistanceX", 8, 1, -1, 1, 132.696),
    Sketcher.Constraint("DistanceX", 12, 1, -1, 1, 85.458),
    Sketcher.Constraint("DistanceX", 16, 1, -1, 1, 82.046),
    Sketcher.Constraint("DistanceX", 20, 1, -1, 1, 76.696),
    Sketcher.Constraint("Distance", 6, 13.8028),
])
pocket1 = body.newObject("PartDesign::Pocket", "Pocket")
pocket1.Profile = sketch2
pocket1.Length = 3

doc.recompute()
